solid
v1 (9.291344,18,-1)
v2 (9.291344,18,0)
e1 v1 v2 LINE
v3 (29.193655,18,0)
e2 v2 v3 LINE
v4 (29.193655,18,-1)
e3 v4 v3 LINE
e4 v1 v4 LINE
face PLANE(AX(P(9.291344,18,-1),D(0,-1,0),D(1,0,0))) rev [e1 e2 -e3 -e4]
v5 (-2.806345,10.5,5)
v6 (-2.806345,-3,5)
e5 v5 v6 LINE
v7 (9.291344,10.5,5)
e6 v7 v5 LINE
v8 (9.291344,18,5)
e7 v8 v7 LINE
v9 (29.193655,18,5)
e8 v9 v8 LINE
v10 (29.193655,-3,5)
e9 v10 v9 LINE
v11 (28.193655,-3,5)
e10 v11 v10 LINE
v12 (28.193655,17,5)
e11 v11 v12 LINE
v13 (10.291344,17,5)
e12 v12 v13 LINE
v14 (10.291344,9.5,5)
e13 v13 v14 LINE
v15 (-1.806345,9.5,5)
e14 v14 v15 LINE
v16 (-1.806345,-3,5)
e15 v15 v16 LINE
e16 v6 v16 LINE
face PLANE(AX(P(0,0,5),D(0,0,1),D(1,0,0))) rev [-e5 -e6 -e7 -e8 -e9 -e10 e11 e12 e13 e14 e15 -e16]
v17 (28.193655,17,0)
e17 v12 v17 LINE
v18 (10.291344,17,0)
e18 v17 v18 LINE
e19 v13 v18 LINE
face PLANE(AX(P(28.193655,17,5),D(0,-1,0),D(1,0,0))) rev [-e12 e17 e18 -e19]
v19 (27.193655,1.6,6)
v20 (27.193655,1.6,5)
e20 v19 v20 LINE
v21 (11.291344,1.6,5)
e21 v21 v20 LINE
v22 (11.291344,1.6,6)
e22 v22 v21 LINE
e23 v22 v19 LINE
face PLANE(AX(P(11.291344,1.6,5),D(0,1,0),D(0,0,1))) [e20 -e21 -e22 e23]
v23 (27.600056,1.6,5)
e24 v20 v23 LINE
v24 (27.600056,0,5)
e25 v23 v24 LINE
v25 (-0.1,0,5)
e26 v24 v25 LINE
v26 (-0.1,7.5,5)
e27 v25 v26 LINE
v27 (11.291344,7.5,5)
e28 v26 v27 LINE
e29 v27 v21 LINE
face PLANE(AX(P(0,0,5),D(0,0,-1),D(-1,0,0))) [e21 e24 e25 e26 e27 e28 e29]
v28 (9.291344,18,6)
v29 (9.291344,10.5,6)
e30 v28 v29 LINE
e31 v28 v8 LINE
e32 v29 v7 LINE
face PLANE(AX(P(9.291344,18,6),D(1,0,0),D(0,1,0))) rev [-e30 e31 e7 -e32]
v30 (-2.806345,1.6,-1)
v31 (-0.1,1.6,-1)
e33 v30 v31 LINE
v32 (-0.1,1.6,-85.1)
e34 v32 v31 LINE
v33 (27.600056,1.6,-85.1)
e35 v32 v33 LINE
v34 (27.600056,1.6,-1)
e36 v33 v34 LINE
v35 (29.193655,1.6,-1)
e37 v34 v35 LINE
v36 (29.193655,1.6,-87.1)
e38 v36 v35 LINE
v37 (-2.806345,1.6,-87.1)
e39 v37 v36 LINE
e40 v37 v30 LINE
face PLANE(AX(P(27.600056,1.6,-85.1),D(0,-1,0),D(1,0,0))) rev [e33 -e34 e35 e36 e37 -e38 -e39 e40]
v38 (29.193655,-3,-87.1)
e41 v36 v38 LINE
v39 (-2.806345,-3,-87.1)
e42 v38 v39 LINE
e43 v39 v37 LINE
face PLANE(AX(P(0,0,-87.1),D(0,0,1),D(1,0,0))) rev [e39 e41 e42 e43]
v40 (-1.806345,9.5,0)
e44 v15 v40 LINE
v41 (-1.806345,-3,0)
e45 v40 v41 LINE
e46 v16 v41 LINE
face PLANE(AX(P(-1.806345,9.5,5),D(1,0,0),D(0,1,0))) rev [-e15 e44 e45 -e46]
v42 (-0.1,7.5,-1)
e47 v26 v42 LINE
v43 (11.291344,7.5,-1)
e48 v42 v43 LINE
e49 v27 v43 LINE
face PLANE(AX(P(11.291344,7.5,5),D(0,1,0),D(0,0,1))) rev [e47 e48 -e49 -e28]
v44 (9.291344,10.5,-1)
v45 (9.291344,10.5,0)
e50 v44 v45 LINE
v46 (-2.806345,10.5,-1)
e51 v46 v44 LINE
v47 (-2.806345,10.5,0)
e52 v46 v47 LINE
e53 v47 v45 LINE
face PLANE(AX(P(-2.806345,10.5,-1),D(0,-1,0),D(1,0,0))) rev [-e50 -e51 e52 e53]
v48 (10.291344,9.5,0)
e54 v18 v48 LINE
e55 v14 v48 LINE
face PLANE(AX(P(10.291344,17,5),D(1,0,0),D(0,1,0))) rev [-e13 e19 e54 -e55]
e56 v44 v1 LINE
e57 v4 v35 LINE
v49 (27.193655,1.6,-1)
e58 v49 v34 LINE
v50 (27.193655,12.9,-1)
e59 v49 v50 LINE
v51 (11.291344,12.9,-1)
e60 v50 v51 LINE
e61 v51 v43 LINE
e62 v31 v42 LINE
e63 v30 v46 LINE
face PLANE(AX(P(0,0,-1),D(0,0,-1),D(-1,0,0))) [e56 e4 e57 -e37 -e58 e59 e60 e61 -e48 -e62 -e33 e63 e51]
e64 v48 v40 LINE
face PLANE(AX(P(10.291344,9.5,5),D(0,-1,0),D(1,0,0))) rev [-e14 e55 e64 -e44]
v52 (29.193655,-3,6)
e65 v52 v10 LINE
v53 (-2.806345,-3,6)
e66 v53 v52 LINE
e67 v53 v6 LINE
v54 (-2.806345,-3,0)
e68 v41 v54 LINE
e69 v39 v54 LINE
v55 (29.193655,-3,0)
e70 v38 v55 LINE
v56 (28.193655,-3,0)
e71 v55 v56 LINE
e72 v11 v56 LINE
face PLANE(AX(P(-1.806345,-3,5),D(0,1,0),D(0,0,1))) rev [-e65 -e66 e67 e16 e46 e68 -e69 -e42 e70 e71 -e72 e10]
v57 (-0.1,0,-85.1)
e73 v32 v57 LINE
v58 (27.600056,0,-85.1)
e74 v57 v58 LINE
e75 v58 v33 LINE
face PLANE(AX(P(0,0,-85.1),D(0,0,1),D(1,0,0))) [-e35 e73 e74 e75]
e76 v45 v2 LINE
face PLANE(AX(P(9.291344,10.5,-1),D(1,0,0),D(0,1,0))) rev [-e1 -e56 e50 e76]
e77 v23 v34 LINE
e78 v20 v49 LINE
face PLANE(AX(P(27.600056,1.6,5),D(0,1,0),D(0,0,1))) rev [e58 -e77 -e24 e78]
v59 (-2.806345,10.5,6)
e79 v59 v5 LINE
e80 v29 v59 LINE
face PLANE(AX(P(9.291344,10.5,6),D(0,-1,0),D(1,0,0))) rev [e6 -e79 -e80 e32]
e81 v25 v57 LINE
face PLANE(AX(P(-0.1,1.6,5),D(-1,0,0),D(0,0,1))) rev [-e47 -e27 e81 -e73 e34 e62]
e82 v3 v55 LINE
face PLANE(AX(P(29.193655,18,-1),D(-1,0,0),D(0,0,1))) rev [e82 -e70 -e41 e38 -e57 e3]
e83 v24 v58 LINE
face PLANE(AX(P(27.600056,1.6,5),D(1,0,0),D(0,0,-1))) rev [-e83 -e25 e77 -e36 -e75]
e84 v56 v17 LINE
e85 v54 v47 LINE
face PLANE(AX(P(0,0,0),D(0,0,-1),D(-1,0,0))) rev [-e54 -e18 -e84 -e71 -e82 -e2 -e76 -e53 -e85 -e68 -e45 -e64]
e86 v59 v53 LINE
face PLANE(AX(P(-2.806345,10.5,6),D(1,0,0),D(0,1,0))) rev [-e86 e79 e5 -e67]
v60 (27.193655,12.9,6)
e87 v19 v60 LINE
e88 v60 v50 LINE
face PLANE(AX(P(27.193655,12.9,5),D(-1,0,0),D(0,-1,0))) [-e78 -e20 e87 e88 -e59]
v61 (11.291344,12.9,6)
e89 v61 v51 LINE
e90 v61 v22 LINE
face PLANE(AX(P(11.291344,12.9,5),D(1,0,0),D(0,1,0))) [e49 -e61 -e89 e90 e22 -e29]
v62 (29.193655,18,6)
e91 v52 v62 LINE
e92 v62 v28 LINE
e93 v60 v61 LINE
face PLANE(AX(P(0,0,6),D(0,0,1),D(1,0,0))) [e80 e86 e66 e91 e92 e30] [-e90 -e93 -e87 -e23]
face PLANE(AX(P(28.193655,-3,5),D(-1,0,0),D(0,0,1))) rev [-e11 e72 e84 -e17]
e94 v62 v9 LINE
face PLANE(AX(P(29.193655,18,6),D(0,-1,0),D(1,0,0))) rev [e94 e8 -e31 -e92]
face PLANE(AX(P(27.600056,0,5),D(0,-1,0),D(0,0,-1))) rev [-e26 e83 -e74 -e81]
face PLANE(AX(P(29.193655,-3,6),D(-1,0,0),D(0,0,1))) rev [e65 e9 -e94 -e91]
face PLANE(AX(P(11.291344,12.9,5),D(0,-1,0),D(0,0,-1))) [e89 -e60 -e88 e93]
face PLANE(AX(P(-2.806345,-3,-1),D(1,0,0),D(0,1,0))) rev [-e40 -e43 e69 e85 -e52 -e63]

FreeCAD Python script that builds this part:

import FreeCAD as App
import Part
import Sketcher
from FreeCAD import Vector

doc = App.newDocument("Part")
body = doc.addObject("PartDesign::Body", "Body")

# Sketch on XY plane
sketch1 = doc.addObject("Sketcher::SketchObject", "Sketch")
body.addObject(sketch1)
sketch1.AttachmentSupport = (doc.XY_Plane, [""])
sketch1.MapMode = "FlatFace"
sketch1.addGeometry([
    Part.LineSegment(Vector(-1.806345, -3, 0), Vector(28.193655, -3, 0)),  # 0
    Part.LineSegment(Vector(28.193655, -3, 0), Vector(28.193655, 17, 0)),  # 1
    Part.LineSegment(Vector(28.193655, 17, 0), Vector(10.291344, 17, 0)),  # 2
    Part.LineSegment(Vector(10.291344, 17, 0), Vector(10.291344, 9.5, 0)),  # 3
    Part.LineSegment(Vector(10.291344, 9.5, 0), Vector(-1.806345, 9.5, 0)),  # 4
    Part.LineSegment(Vector(-1.806345, 9.5, 0), Vector(-1.806345, -3, 0)),  # 5
    Part.LineSegment(Vector(27.193655, 1.6, 0), Vector(11.291344, 1.6, 0)),  # 6
    Part.LineSegment(Vector(11.291344, 1.6, 0), Vector(11.291344, 12.9, 0)),  # 7
    Part.LineSegment(Vector(11.291344, 12.9, 0), Vector(27.193655, 12.9, 0)),  # 8
    Part.LineSegment(Vector(27.193655, 12.9, 0), Vector(27.193655, 1.6, 0)),  # 9
], False)
sketch1.addConstraint([
    Sketcher.Constraint("Coincident", 0, 2, 1, 1),
    Sketcher.Constraint("Coincident", 1, 2, 2, 1),
    Sketcher.Constraint("Coincident", 2, 2, 3, 1),
    Sketcher.Constraint("Coincident", 3, 2, 4, 1),
    Sketcher.Constraint("Coincident", 4, 2, 5, 1),
    Sketcher.Constraint("Coincident", 5, 2, 0, 1),
    Sketcher.Constraint("Coincident", 6, 2, 7, 1),
    Sketcher.Constraint("Coincident", 7, 2, 8, 1),
    Sketcher.Constraint("Coincident", 8, 2, 9, 1),
    Sketcher.Constraint("Coincident", 9, 2, 6, 1),
    Sketcher.Constraint("Horizontal", 0),
    Sketcher.Constraint("Vertical", 1),
    Sketcher.Constraint("Horizontal", 2),
    Sketcher.Constraint("Vertical", 3),
    Sketcher.Constraint("Horizontal", 4),
    Sketcher.Constraint("Vertical", 5),
    Sketcher.Constraint("Horizontal", 6),
    Sketcher.Constraint("Vertical", 7),
    Sketcher.Constraint("Horizontal", 8),
    Sketcher.Constraint("Vertical", 9),
    Sketcher.Constraint("DistanceX", 0, 1, 0, 2, 30.0),
    Sketcher.Constraint("DistanceY", 1, 1, 1, 2, 20.0),
    Sketcher.Constraint("DistanceY", 3, 2, 3, 1, 7.5),
    Sketcher.Constraint("DistanceY", 7, 1, 7, 2, 11.3),
    Sketcher.Constraint("DistanceY", 0, 2, -1, 1, 3.0),
    Sketcher.Constraint("DistanceX", 3, 2, 6, 2, 1.0),
    Sketcher.Constraint("DistanceX", 8, 2, 1, 2, 1.0),
    Sketcher.Constraint("DistanceY", -1, 1, 6, 2, 1.6),
    Sketcher.Constraint("DistanceX", 2, 2, 2, 1, 17.902311),
    Sketcher.Constraint("DistanceX", -1, 1, 0, 2, 28.193655),
])
pad1 = doc.addObject("PartDesign::Pad", "Pad")
body.addObject(pad1)
pad1.Profile = sketch1
pad1.Length = 5

# Sketch on XY plane
sketch2 = doc.addObject("Sketcher::SketchObject", "Sketch001")
body.addObject(sketch2)
sketch2.AttachmentSupport = (doc.XY_Plane, [""])
sketch2.MapMode = "FlatFace"
sketch2.AttachmentOffset = App.Placement(Vector(0, 0, 5), App.Rotation())
sketch2.addGeometry([
    Part.LineSegment(Vector(-2.806345, -3, 0), Vector(29.193655, -3, 0)),  # 0
    Part.LineSegment(Vector(29.193655, -3, 0), Vector(29.193655, 18, 0)),  # 1
    Part.LineSegment(Vector(29.193655, 18, 0), Vector(9.291344, 18, 0)),  # 2
    Part.LineSegment(Vector(9.291344, 18, 0), Vector(9.291344, 10.5, 0)),  # 3
    Part.LineSegment(Vector(9.291344, 10.5, 0), Vector(-2.806345, 10.5, 0)),  # 4
    Part.LineSegment(Vector(-2.806345, 10.5, 0), Vector(-2.806345, -3, 0)),  # 5
], False)
sketch2.addConstraint([
    Sketcher.Constraint("Coincident", 0, 2, 1, 1),
    Sketcher.Constraint("Coincident", 1, 2, 2, 1),
    Sketcher.Constraint("Coincident", 2, 2, 3, 1),
    Sketcher.Constraint("Coincident", 3, 2, 4, 1),
    Sketcher.Constraint("Coincident", 4, 2, 5, 1),
    Sketcher.Constraint("Coincident", 5, 2, 0, 1),
    Sketcher.Constraint("Horizontal", 0),
    Sketcher.Constraint("Vertical", 1),
    Sketcher.Constraint("Horizontal", 2),
    Sketcher.Constraint("Vertical", 3),
    Sketcher.Constraint("Horizontal", 4),
    Sketcher.Constraint("Vertical", 5),
    Sketcher.Constraint("DistanceX", 0, 1, 0, 2, 32.0),
    Sketcher.Constraint("DistanceY", 1, 1, 1, 2, 21.0),
    Sketcher.Constraint("DistanceY", 3, 2, 3, 1, 7.5),
    Sketcher.Constraint("DistanceY", 0, 2, -1, 1, 3.0),
    Sketcher.Constraint("DistanceX", 2, 2, 2, 1, 19.902311),
    Sketcher.Constraint("DistanceX", -1, 1, 0, 2, 29.193655),
])
pad2 = doc.addObject("PartDesign::Pad", "Pad001")
body.addObject(pad2)
pad2.Profile = sketch2
pad2.Length = 1

# Sketch on XY plane
sketch3 = doc.addObject("Sketcher::SketchObject", "Sketch002")
body.addObject(sketch3)
sketch3.AttachmentSupport = (doc.XY_Plane, [""])
sketch3.MapMode = "FlatFace"
sketch3.addGeometry([
    Part.LineSegment(Vector(29.193655, 18, 0), Vector(29.193655, -3, 0)),  # 0
    Part.LineSegment(Vector(29.193655, -3, 0), Vector(-2.806345, -3, 0)),  # 1
    Part.LineSegment(Vector(-2.806345, -3, 0), Vector(-2.806345, 10.5, 0)),  # 2
    Part.LineSegment(Vector(-2.806345, 10.5, 0), Vector(9.291344, 10.5, 0)),  # 3
    Part.LineSegment(Vector(9.291344, 10.5, 0), Vector(9.291344, 18, 0)),  # 4
    Part.LineSegment(Vector(9.291344, 18, 0), Vector(29.193655, 18, 0)),  # 5
], False)
sketch3.addConstraint([
    Sketcher.Constraint("Coincident", 0, 2, 1, 1),
    Sketcher.Constraint("Coincident", 1, 2, 2, 1),
    Sketcher.Constraint("Coincident", 2, 2, 3, 1),
    Sketcher.Constraint("Coincident", 3, 2, 4, 1),
    Sketcher.Constraint("Coincident", 4, 2, 5, 1),
    Sketcher.Constraint("Coincident", 5, 2, 0, 1),
    Sketcher.Constraint("Vertical", 0),
    Sketcher.Constraint("Horizontal", 1),
    Sketcher.Constraint("Vertical", 2),
    Sketcher.Constraint("Horizontal", 3),
    Sketcher.Constraint("Vertical", 4),
    Sketcher.Constraint("Horizontal", 5),
    Sketcher.Constraint("DistanceX", 1, 2, 1, 1, 32.0),
    Sketcher.Constraint("DistanceY", 0, 2, 0, 1, 21.0),
    Sketcher.Constraint("DistanceY", 2, 1, 2, 2, 13.5),
    Sketcher.Constraint("DistanceY", 0, 2, -1, 1, 3.0),
    Sketcher.Constraint("DistanceX", 3, 1, 3, 2, 12.097689),
    Sketcher.Constraint("DistanceX", -1, 1, 0, 2, 29.193655),
])
pad3 = doc.addObject("PartDesign::Pad", "Pad002")
body.addObject(pad3)
pad3.Profile = sketch3
pad3.Length = 1
pad3.Reversed = True

# Sketch on XY plane
sketch4 = doc.addObject("Sketcher::SketchObject", "Sketch003")
body.addObject(sketch4)
sketch4.AttachmentSupport = (doc.XY_Plane, [""])
sketch4.MapMode = "FlatFace"
sketch4.AttachmentOffset = App.Placement(Vector(0, 0, 6), App.Rotation())
sketch4.addGeometry([
    Part.LineSegment(Vector(11.291344, 12.9, 0), Vector(11.291344, 1.6, 0)),
    Part.LineSegment(Vector(11.291344, 1.6, 0), Vector(27.193655, 1.6, 0)),
    Part.LineSegment(Vector(27.193655, 1.6, 0), Vector(27.193655, 12.9, 0)),
    Part.LineSegment(Vector(27.193655, 12.9, 0), Vector(11.291344, 12.9, 0)),
], False)
sketch4.addConstraint([
    Sketcher.Constraint("Coincident", 0, 2, 1, 1),
    Sketcher.Constraint("Coincident", 1, 2, 2, 1),
    Sketcher.Constraint("Coincident", 2, 2, 3, 1),
    Sketcher.Constraint("Coincident", 3, 2, 0, 1),
    Sketcher.Constraint("Vertical", 0),
    Sketcher.Constraint("Horizontal", 1),
    Sketcher.Constraint("Vertical", 2),
    Sketcher.Constraint("Horizontal", 3),
    Sketcher.Constraint("DistanceY", 0, 2, 0, 1, 11.3),
    Sketcher.Constraint("DistanceY", -1, 1, 0, 2, 1.6),
    Sketcher.Constraint("DistanceX", 1, 1, 1, 2, 15.902311),
    Sketcher.Constraint("DistanceX", -1, 1, 0, 2, 11.291344),
])
pocket1 = doc.addObject("PartDesign::Pocket", "Pocket")
body.addObject(pocket1)
pocket1.Profile = sketch4
pocket1.Type = "ThroughAll"

# Sketch on XY plane
sketch5 = doc.addObject("Sketcher::SketchObject", "Sketch004")
body.addObject(sketch5)
sketch5.AttachmentSupport = (doc.XY_Plane, [""])
sketch5.MapMode = "FlatFace"
sketch5.AttachmentOffset = App.Placement(Vector(0, 0, -1), App.Rotation())
sketch5.addGeometry([
    Part.LineSegment(Vector(27.600056, 1.6, 0), Vector(27.600056, 0, 0)),
    Part.LineSegment(Vector(27.600056, 0, 0), Vector(-0.1, 0, 0)),
    Part.LineSegment(Vector(-0.1, 0, 0), Vector(-0.1, 1.6, 0)),
    Part.LineSegment(Vector(-0.1, 1.6, 0), Vector(27.600056, 1.6, 0)),
], False)
sketch5.addConstraint([
    Sketcher.Constraint("Coincident", 0, 2, 1, 1),
    Sketcher.Constraint("Coincident", 1, 2, 2, 1),
    Sketcher.Constraint("Coincident", 2, 2, 3, 1),
    Sketcher.Constraint("Coincident", 3, 2, 0, 1),
    Sketcher.Constraint("Vertical", 0),
    Sketcher.Constraint("Horizontal", 1),
    Sketcher.Constraint("Vertical", 2),
    Sketcher.Constraint("Horizontal", 3),
    Sketcher.Constraint("PointOnObject", 0, 2, -1),
    Sketcher.Constraint("DistanceY", 0, 2, 0, 1, 1.6),
    Sketcher.Constraint("DistanceX", 1, 2, -1, 1, 0.1),
    Sketcher.Constraint("DistanceX", 1, 2, 1, 1, 27.700056),
])
pocket2 = doc.addObject("PartDesign::Pocket", "Pocket001")
body.addObject(pocket2)
pocket2.Profile = sketch5
pocket2.Length = 6
pocket2.Reversed = True

# Sketch on XY plane
sketch6 = doc.addObject("Sketcher::SketchObject", "Sketch005")
body.addObject(sketch6)
sketch6.AttachmentSupport = (doc.XY_Plane, [""])
sketch6.MapMode = "FlatFace"
sketch6.AttachmentOffset = App.Placement(Vector(0, 0, -1), App.Rotation())
sketch6.addGeometry([
    Part.LineSegment(Vector(27.600056, 1.6, 0), Vector(29.193655, 1.6, 0)),  # 0
    Part.LineSegment(Vector(29.193655, 1.6, 0), Vector(29.193655, -3, 0)),  # 1
    Part.LineSegment(Vector(29.193655, -3, 0), Vector(-2.806345, -3, 0)),  # 2
    Part.LineSegment(Vector(-2.806345, -3, 0), Vector(-2.806345, 1.6, 0)),  # 3
    Part.LineSegment(Vector(-2.806345, 1.6, 0), Vector(-0.1, 1.6, 0)),  # 4
    Part.LineSegment(Vector(-0.1, 1.6, 0), Vector(-0.1, 0, 0)),  # 5
    Part.LineSegment(Vector(-0.1, 0, 0), Vector(27.600056, 0, 0)),  # 6
    Part.LineSegment(Vector(27.600056, 0, 0), Vector(27.600056, 1.6, 0)),  # 7
], False)
sketch6.addConstraint([
    Sketcher.Constraint("Coincident", 0, 2, 1, 1),
    Sketcher.Constraint("Coincident", 1, 2, 2, 1),
    Sketcher.Constraint("Coincident", 2, 2, 3, 1),
    Sketcher.Constraint("Coincident", 3, 2, 4, 1),
    Sketcher.Constraint("Coincident", 4, 2, 5, 1),
    Sketcher.Constraint("Coincident", 5, 2, 6, 1),
    Sketcher.Constraint("Coincident", 6, 2, 7, 1),
    Sketcher.Constraint("Coincident", 7, 2, 0, 1),
    Sketcher.Constraint("Horizontal", 0),
    Sketcher.Constraint("Vertical", 1),
    Sketcher.Constraint("Horizontal", 2),
    Sketcher.Constraint("Vertical", 3),
    Sketcher.Constraint("Horizontal", 4),
    Sketcher.Constraint("Vertical", 5),
    Sketcher.Constraint("Horizontal", 6),
    Sketcher.Constraint("Vertical", 7),
    Sketcher.Constraint("PointOnObject", 5, 2, -1),
    Sketcher.Constraint("Horizontal", 0, 2, 3, 2),
    Sketcher.Constraint("DistanceX", 2, 2, 2, 1, 32.0),
    Sketcher.Constraint("DistanceY", 1, 2, 1, 1, 4.6),
    Sketcher.Constraint("DistanceY", 5, 2, 5, 1, 1.6),
    Sketcher.Constraint("DistanceX", 4, 2, -1, 1, 0.1),
    Sketcher.Constraint("DistanceX", 0, 1, 0, 2, 1.593599),
    Sketcher.Constraint("DistanceX", 4, 1, 4, 2, 2.706345),
])
pad4 = doc.addObject("PartDesign::Pad", "Pad003")
body.addObject(pad4)
pad4.Profile = sketch6
pad4.Length = 84.1
pad4.Reversed = True

# Sketch on XY plane
sketch7 = doc.addObject("Sketcher::SketchObject", "Sketch006")
body.addObject(sketch7)
sketch7.AttachmentSupport = (doc.XY_Plane, [""])
sketch7.MapMode = "FlatFace"
sketch7.AttachmentOffset = App.Placement(Vector(0, 0, -85.1), App.Rotation())
sketch7.addGeometry([
    Part.LineSegment(Vector(29.193655, 1.6, 0), Vector(29.193655, -3, 0)),
    Part.LineSegment(Vector(29.193655, -3, 0), Vector(-2.806345, -3, 0)),
    Part.LineSegment(Vector(-2.806345, -3, 0), Vector(-2.806345, 1.6, 0)),
    Part.LineSegment(Vector(-2.806345, 1.6, 0), Vector(29.193655, 1.6, 0)),
], False)
sketch7.addConstraint([
    Sketcher.Constraint("Coincident", 0, 2, 1, 1),
    Sketcher.Constraint("Coincident", 1, 2, 2, 1),
    Sketcher.Constraint("Coincident", 2, 2, 3, 1),
    Sketcher.Constraint("Coincident", 3, 2, 0, 1),
    Sketcher.Constraint("Vertical", 0),
    Sketcher.Constraint("Horizontal", 1),
    Sketcher.Constraint("Vertical", 2),
    Sketcher.Constraint("Horizontal", 3),
    Sketcher.Constraint("DistanceX", 1, 2, 1, 1, 32.0),
    Sketcher.Constraint("DistanceY", 0, 2, 0, 1, 4.6),
    Sketcher.Constraint("DistanceY", 0, 2, -1, 1, 3.0),
    Sketcher.Constraint("DistanceX", -1, 1, 0, 2, 29.193655),
])
pad5 = doc.addObject("PartDesign::Pad", "Pad004")
body.addObject(pad5)
pad5.Profile = sketch7
pad5.Length = 2
pad5.Reversed = True

# Sketch on XY plane
sketch8 = doc.addObject("Sketcher::SketchObject", "Sketch007")
body.addObject(sketch8)
sketch8.AttachmentSupport = (doc.XY_Plane, [""])
sketch8.MapMode = "FlatFace"
sketch8.AttachmentOffset = App.Placement(Vector(0, 0, -1), App.Rotation())
sketch8.addGeometry([
    Part.LineSegment(Vector(11.291344, 7.5, 0), Vector(11.291344, 1.6, 0)),
    Part.LineSegment(Vector(11.291344, 1.6, 0), Vector(-0.1, 1.6, 0)),
    Part.LineSegment(Vector(-0.1, 1.6, 0), Vector(-0.1, 7.5, 0)),
    Part.LineSegment(Vector(-0.1, 7.5, 0), Vector(11.291344, 7.5, 0)),
], False)
sketch8.addConstraint([
    Sketcher.Constraint("Coincident", 0, 2, 1, 1),
    Sketcher.Constraint("Coincident", 1, 2, 2, 1),
    Sketcher.Constraint("Coincident", 2, 2, 3, 1),
    Sketcher.Constraint("Coincident", 3, 2, 0, 1),
    Sketcher.Constraint("Vertical", 0),
    Sketcher.Constraint("Horizontal", 1),
    Sketcher.Constraint("Vertical", 2),
    Sketcher.Constraint("Horizontal", 3),
    Sketcher.Constraint("DistanceY", 0, 2, 0, 1, 5.9),
    Sketcher.Constraint("DistanceY", -1, 1, 0, 2, 1.6),
    Sketcher.Constraint("DistanceX", 1, 2, -1, 1, 0.1),
    Sketcher.Constraint("DistanceX", 1, 2, 1, 1, 11.391344),
])
pocket3 = doc.addObject("PartDesign::Pocket", "Pocket002")
body.addObject(pocket3)
pocket3.Profile = sketch8
pocket3.Length = 6
pocket3.Reversed = True

doc.recompute()
